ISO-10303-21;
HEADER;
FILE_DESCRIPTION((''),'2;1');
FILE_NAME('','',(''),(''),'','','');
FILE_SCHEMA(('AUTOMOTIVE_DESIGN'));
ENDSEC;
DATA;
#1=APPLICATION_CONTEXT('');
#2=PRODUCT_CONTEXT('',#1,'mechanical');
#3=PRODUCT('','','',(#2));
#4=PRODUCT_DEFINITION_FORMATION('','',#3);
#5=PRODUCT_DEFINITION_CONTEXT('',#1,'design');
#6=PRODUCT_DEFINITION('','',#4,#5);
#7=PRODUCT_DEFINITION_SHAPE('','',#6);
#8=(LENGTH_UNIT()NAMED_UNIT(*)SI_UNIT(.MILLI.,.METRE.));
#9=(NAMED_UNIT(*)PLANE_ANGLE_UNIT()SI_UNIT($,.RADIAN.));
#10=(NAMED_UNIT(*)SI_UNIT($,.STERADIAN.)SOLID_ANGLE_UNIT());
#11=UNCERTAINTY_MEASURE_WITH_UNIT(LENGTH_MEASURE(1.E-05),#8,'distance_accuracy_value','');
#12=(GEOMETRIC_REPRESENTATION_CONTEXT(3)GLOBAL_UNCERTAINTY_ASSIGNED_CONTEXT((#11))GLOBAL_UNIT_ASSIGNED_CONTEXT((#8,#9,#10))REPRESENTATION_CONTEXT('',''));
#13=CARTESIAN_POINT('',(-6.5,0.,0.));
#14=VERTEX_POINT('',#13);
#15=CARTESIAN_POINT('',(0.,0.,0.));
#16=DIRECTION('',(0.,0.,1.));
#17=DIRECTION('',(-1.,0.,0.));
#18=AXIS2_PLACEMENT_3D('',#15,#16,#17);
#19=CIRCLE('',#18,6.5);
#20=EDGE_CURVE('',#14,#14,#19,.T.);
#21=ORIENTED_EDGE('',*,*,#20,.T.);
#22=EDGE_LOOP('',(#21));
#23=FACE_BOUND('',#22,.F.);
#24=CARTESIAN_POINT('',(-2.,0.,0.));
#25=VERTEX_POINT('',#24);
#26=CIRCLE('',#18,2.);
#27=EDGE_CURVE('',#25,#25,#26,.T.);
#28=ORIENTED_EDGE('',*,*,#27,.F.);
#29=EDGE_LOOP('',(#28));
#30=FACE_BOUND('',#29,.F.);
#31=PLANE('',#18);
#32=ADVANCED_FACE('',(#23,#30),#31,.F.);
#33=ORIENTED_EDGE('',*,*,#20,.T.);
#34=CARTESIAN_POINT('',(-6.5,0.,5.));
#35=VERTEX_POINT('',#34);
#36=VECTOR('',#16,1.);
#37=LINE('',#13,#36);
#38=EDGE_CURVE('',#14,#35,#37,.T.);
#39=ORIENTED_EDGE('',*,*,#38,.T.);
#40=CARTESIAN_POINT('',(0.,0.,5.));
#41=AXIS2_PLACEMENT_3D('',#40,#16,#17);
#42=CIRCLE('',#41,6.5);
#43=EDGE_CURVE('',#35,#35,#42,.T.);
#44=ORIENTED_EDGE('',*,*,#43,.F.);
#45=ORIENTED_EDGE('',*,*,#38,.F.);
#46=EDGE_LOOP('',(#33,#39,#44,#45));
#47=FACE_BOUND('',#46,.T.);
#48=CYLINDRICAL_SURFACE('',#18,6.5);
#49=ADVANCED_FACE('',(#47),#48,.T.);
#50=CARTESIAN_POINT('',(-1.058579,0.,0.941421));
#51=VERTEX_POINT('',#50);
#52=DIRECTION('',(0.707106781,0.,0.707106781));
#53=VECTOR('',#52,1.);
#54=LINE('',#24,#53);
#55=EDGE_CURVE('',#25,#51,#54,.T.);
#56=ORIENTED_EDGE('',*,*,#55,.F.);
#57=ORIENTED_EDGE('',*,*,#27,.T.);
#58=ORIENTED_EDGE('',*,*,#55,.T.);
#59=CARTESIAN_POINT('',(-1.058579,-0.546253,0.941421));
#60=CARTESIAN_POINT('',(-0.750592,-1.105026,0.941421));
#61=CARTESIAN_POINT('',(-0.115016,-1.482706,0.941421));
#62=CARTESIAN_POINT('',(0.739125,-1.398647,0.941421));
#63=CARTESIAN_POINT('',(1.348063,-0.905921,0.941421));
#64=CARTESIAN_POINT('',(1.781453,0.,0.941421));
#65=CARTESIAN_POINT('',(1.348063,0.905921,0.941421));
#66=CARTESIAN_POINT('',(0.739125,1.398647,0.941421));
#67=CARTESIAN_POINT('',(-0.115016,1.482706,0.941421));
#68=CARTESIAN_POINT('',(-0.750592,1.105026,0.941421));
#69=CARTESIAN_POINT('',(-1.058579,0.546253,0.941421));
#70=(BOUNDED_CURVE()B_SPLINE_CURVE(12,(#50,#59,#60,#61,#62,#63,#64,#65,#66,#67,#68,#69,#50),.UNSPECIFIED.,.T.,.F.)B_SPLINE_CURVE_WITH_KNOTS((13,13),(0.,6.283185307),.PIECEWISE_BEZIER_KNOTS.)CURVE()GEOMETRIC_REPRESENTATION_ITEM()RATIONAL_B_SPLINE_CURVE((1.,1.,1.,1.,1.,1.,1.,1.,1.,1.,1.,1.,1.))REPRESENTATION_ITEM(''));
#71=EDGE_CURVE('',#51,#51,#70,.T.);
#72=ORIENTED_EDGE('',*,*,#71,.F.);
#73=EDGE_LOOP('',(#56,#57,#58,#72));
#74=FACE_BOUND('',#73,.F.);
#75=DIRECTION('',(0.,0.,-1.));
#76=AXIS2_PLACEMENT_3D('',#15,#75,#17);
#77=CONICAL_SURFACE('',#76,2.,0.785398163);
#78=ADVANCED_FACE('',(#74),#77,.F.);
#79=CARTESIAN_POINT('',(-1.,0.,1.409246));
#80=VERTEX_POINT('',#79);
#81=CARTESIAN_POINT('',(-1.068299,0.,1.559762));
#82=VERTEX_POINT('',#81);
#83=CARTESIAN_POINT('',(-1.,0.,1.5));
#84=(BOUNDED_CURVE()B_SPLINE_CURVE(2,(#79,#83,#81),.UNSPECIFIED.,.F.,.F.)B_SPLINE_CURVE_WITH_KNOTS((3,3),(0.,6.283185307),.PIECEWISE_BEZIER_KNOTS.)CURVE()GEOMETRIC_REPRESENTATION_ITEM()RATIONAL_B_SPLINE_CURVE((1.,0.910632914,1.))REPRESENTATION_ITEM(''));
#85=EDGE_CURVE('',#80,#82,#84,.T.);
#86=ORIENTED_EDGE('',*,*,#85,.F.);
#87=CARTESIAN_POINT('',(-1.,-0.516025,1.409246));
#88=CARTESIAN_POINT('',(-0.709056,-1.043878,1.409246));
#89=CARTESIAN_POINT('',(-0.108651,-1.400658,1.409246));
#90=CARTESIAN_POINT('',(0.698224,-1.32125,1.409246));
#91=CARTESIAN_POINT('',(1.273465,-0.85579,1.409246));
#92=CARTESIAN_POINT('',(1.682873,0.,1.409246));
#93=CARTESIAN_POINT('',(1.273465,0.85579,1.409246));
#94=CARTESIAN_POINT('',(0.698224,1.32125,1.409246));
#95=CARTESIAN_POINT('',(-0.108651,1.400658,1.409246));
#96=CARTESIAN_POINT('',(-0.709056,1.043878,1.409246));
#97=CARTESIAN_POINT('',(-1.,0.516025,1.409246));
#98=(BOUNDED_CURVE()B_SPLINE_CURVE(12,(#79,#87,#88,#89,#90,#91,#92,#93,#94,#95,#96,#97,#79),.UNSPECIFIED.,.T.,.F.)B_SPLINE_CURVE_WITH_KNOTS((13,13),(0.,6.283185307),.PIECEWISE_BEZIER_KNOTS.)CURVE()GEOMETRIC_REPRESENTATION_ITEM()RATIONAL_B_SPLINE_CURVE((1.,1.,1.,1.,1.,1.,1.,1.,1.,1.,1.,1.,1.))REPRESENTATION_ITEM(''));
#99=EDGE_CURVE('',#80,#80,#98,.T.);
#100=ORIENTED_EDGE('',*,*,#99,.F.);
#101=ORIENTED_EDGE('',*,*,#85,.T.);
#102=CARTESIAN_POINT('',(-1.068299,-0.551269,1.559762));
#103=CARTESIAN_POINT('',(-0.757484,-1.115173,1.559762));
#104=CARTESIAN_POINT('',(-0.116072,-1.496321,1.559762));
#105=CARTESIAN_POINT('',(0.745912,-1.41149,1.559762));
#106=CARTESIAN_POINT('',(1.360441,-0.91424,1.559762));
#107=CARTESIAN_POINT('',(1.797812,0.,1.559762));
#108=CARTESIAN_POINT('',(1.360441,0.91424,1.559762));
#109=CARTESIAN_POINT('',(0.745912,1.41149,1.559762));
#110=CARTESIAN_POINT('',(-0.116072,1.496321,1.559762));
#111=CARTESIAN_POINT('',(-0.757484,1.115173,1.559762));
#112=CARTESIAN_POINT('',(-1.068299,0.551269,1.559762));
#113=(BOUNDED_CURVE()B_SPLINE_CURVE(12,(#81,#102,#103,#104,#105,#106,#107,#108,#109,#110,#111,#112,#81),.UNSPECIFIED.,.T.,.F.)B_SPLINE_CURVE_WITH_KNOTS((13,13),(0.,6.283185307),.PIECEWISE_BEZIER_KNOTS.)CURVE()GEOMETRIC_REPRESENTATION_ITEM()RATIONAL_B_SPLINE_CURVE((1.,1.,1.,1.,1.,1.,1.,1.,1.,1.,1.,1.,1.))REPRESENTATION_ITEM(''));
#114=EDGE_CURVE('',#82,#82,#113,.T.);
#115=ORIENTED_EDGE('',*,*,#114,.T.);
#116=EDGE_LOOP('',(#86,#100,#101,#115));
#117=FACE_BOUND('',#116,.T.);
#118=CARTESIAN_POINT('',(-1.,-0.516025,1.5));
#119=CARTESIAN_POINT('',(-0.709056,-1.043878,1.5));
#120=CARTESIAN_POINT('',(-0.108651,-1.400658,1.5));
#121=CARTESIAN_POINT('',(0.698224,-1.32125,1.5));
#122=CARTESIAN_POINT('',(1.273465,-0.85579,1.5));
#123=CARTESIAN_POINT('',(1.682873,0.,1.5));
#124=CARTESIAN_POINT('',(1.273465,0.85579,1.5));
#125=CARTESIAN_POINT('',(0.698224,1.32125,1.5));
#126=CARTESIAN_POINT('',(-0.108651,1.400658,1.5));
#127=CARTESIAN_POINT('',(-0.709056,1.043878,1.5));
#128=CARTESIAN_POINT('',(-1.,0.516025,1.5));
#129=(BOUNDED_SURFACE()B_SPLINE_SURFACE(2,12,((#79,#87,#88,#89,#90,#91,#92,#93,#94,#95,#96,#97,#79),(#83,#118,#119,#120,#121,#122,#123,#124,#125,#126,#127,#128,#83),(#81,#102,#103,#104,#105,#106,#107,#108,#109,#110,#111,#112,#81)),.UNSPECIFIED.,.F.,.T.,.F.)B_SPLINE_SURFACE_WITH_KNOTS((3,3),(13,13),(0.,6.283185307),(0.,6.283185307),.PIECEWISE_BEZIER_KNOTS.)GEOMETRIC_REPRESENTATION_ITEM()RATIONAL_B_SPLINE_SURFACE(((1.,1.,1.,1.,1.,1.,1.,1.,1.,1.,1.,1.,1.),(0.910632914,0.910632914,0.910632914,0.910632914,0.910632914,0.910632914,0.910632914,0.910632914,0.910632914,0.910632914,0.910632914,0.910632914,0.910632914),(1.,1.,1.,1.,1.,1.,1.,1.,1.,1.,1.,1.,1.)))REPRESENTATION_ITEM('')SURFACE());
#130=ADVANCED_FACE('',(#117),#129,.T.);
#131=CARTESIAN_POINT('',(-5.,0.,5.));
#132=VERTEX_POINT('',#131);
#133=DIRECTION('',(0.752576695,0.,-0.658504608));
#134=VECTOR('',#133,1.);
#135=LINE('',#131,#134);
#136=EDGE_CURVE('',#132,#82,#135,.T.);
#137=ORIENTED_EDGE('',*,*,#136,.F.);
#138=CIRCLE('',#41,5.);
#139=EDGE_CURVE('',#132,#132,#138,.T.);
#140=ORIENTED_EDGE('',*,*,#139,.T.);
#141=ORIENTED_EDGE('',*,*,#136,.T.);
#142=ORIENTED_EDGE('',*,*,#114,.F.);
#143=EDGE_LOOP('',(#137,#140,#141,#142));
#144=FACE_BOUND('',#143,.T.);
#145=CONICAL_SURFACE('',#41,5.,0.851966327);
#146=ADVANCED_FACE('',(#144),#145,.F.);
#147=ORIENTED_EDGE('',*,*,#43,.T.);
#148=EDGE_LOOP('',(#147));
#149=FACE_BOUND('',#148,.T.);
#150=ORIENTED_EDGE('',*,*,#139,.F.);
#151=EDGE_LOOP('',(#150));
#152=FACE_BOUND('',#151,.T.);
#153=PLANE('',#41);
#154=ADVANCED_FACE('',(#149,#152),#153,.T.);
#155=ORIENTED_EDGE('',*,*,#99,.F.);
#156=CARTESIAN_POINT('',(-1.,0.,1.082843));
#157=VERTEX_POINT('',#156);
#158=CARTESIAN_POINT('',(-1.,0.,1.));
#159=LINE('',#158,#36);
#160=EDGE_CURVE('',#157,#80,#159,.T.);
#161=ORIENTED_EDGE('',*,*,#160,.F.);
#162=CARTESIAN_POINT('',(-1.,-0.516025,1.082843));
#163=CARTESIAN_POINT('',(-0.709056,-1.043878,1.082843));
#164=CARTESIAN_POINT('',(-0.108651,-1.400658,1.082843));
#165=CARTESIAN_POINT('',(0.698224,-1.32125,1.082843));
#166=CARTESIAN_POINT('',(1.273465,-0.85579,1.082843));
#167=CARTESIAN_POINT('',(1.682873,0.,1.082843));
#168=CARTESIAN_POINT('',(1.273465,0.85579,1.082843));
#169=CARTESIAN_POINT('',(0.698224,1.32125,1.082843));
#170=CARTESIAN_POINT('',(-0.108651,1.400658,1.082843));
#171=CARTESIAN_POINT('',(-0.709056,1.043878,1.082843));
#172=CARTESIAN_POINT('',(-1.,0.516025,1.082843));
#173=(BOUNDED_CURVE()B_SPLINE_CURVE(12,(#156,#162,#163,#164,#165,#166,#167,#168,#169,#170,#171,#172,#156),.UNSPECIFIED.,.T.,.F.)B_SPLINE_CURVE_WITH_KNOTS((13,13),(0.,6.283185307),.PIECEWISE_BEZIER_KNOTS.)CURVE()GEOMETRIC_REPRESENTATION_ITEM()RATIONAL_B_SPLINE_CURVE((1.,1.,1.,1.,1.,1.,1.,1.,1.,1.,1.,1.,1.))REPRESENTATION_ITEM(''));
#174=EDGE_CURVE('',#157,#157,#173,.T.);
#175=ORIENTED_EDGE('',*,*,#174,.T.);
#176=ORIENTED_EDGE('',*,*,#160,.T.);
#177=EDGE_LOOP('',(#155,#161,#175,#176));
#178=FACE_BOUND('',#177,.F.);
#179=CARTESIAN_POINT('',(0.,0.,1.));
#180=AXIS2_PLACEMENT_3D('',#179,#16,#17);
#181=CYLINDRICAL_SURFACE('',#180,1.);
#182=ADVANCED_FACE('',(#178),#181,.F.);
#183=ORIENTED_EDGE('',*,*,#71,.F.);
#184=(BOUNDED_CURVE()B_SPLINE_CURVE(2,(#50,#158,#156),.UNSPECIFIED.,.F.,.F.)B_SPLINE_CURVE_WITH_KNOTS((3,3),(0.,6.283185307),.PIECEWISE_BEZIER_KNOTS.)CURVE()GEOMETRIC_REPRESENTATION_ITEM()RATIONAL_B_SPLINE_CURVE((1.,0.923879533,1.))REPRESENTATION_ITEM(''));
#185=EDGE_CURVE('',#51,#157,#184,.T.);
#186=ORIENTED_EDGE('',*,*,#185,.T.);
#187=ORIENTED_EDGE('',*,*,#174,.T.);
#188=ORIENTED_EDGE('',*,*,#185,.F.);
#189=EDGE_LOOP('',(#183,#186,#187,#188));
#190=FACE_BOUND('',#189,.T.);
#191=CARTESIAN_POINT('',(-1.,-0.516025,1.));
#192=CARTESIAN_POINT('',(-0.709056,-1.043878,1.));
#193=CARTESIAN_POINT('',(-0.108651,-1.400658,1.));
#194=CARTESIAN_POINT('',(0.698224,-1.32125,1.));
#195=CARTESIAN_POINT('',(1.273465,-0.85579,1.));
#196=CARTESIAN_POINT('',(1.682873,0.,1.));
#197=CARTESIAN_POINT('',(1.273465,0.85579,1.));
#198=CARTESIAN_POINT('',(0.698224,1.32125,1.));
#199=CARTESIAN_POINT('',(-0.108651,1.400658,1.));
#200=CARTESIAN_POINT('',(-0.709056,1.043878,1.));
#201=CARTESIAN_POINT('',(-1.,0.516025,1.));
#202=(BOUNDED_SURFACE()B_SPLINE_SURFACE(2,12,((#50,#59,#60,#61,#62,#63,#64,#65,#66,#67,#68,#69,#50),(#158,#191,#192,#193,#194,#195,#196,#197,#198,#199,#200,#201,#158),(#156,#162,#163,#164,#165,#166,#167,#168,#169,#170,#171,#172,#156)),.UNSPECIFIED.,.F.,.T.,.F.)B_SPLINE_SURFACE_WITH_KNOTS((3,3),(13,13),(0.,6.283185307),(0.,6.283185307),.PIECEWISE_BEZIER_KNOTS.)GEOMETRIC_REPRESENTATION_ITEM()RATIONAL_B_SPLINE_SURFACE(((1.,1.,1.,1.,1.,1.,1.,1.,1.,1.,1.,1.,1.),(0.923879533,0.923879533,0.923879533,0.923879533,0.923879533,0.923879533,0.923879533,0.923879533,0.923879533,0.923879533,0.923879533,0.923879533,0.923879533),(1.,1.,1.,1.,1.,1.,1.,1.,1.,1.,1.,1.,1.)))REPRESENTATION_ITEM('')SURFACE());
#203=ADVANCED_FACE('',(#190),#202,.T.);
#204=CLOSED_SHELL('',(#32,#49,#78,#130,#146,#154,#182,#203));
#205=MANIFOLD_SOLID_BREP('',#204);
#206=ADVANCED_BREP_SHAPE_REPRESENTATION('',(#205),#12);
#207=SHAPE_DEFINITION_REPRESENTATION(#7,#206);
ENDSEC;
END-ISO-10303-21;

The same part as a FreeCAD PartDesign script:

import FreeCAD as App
import Part
import Sketcher

V = App.Vector
Q = App.Units.Quantity


def edges_at(feature, points):
    """Names of the edges that pass closest to the given points."""
    edges = feature.Shape.Edges
    near = lambda p: min(range(len(edges)), key=lambda i: edges[i].distToShape(Part.Vertex(*p))[0])
    return sorted({f"Edge{near(p) + 1}" for p in points})

doc = App.newDocument("Part")
body = doc.addObject("PartDesign::Body", "Body")

# Sketch on XZ plane
sketch1 = body.newObject("Sketcher::SketchObject", "Sketch")
sketch1.AttachmentSupport = (doc.getObject("XZ_Plane"), [""])
sketch1.MapMode = "FlatFace"
sketch1.addGeometry(Part.LineSegment(V(-2, 0, 0), V(-6.5, 0, 0)), False)
sketch1.addGeometry(Part.LineSegment(V(-6.5, 0, 0), V(-6.5, 5, 0)), False)
sketch1.addGeometry(Part.LineSegment(V(-6.5, 5, 0), V(-5, 5, 0)), False)
sketch1.addGeometry(Part.LineSegment(V(-5, 5, 0), V(-1, 1.5, 0)), False)
sketch1.addGeometry(Part.LineSegment(V(-1, 1.5, 0), V(-1, 1, 0)), False)
sketch1.addGeometry(Part.LineSegment(V(-1, 1, 0), V(-2, 0, 0)), False)
sketch1.addConstraint(Sketcher.Constraint("Coincident", 0, 2, 1, 1))
sketch1.addConstraint(Sketcher.Constraint("Coincident", 1, 2, 2, 1))
sketch1.addConstraint(Sketcher.Constraint("Coincident", 2, 2, 3, 1))
sketch1.addConstraint(Sketcher.Constraint("Coincident", 3, 2, 4, 1))
sketch1.addConstraint(Sketcher.Constraint("Coincident", 4, 2, 5, 1))
sketch1.addConstraint(Sketcher.Constraint("Coincident", 5, 2, 0, 1))
sketch1.addConstraint(Sketcher.Constraint("Horizontal", 0))
sketch1.addConstraint(Sketcher.Constraint("Vertical", 1))
sketch1.addConstraint(Sketcher.Constraint("Horizontal", 2))
sketch1.addConstraint(Sketcher.Constraint("Vertical", 4))
sketch1.addConstraint(Sketcher.Constraint("PointOnObject", 0, 2, -1))
sketch1.addConstraint(Sketcher.Constraint("DistanceY", 1, 1, 1, 2, Q("5 mm")))
sketch1.addConstraint(Sketcher.Constraint("DistanceX", 0, 2, 0, 1, Q("4.5 mm")))
sketch1.addConstraint(Sketcher.Constraint("DistanceX", 2, 1, 2, 2, Q("1.5 mm")))
sketch1.addConstraint(Sketcher.Constraint("DistanceY", 4, 2, 4, 1, Q("0.5 mm")))
sketch1.addConstraint(Sketcher.Constraint("DistanceX", 2, 2, -1, 1, Q("5 mm")))
sketch1.addConstraint(Sketcher.Constraint("DistanceX", 3, 2, -1, 1, Q("1 mm")))
sketch1.addConstraint(Sketcher.Constraint("DistanceY", -1, 1, 4, 2, Q("1 mm")))
revolution = body.newObject("PartDesign::Revolution", "Revolution")
revolution.Profile = sketch1
revolution.ReferenceAxis = (sketch1, ["V_Axis"])
revolution.Angle = 360
doc.recompute()

fillet = body.newObject("PartDesign::Fillet", "Fillet")
fillet.Base = (revolution, edges_at(revolution, [(1, 0, 1), (1, 0, 1.5)]))
fillet.Radius = 0.2

doc.recompute()
